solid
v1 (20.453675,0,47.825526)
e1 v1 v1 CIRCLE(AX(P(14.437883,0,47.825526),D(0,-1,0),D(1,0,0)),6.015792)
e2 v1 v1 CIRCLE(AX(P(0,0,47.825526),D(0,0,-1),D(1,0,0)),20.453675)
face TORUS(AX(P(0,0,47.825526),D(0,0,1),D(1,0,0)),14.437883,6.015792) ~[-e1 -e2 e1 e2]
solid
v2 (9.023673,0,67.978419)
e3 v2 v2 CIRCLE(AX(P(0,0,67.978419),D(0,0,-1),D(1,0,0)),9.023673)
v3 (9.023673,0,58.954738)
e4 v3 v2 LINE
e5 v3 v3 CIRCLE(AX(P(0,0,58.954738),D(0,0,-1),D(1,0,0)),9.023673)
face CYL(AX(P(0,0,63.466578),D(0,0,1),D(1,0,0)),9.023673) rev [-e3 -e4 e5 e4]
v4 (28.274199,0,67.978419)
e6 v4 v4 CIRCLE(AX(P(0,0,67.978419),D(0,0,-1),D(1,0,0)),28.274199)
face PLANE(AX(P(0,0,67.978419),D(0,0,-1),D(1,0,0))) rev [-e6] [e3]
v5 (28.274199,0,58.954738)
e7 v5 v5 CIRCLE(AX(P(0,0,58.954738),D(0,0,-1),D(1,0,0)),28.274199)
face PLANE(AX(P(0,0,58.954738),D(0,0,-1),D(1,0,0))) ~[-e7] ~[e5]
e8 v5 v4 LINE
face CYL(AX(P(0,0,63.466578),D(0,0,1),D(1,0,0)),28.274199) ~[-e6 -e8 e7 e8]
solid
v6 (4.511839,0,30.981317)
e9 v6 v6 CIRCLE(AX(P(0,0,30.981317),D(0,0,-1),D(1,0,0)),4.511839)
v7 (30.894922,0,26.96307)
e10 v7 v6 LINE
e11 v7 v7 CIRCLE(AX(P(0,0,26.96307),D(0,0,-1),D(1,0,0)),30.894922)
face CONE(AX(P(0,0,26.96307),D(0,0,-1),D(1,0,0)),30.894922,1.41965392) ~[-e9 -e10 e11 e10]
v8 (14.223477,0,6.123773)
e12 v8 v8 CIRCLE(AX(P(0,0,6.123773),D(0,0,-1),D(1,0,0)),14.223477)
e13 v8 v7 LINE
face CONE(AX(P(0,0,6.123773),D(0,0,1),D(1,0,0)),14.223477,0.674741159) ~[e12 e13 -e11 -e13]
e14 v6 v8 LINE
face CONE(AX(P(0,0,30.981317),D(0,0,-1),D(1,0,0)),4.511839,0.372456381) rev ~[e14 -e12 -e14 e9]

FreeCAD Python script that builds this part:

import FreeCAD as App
import Part
import Sketcher

V = App.Vector
Q = App.Units.Quantity


def add_polygon(sketch, points):
    """Adds a closed chain of lines whose ends are joined by coincident constraints."""
    first, n = sketch.GeometryCount, len(points)
    for a, b in zip(points, points[1:] + points[:1]):
        sketch.addGeometry(Part.LineSegment(App.Vector(*a, 0), App.Vector(*b, 0)), False)
    for i in range(n):
        sketch.addConstraint(Sketcher.Constraint("Coincident", first + i, 2, first + (i + 1) % n, 1))

doc = App.newDocument("Part")
body = doc.addObject("PartDesign::Body", "Body")
body.AllowCompound = True

# Sketch on XZ plane
sketch1 = doc.addObject("Sketcher::SketchObject", "Sketch")
body.addObject(sketch1)
sketch1.AttachmentSupport = (doc.XZ_Plane, [""])
sketch1.MapMode = "FlatFace"
add_polygon(sketch1, [(9.023673, 67.978419), (9.023673, 58.954738), (28.274199, 58.954738), (28.274199, 67.978419)])  # lines 0-3
sketch1.addGeometry(Part.Circle(V(14.437883, 47.825526, 0), V(0, 0, 1), 6.015792), False)  # 4
add_polygon(sketch1, [(14.223477, 6.123773), (30.894922, 26.96307), (4.511839, 30.981317)])  # lines 5-7
sketch1.addConstraint(Sketcher.Constraint("Vertical", 0))
sketch1.addConstraint(Sketcher.Constraint("Horizontal", 1))
sketch1.addConstraint(Sketcher.Constraint("Vertical", 2))
sketch1.addConstraint(Sketcher.Constraint("Horizontal", 3))
sketch1.addConstraint(Sketcher.Constraint("Equal", 5, 6))
sketch1.addConstraint(Sketcher.Constraint("Equal", 6, 7))
sketch1.addConstraint(Sketcher.Constraint("Diameter", 4, Q("12.031584 mm")))
sketch1.addConstraint(Sketcher.Constraint("DistanceY", 0, 2, 0, 1, Q("9.023681 mm")))
sketch1.addConstraint(Sketcher.Constraint("DistanceX", -1, 1, 1, 2, Q("28.274199 mm")))
sketch1.addConstraint(Sketcher.Constraint("DistanceY", 6, 2, 3, 2, Q("36.997101 mm")))
sketch1.addConstraint(Sketcher.Constraint("DistanceX", 1, 1, 1, 2, Q("19.250525 mm")))
sketch1.addConstraint(Sketcher.Constraint("DistanceY", -1, 1, 2, 2, Q("67.978419 mm")))
sketch1.addConstraint(Sketcher.Constraint("DistanceY", -1, 1, 5, 2, Q("26.96307 mm")))
sketch1.addConstraint(Sketcher.Constraint("DistanceX", -1, 1, 6, 2, Q("4.511839 mm")))
sketch1.addConstraint(Sketcher.Constraint("DistanceX", 0, 2, 4, 3, Q("5.41421 mm")))
sketch1.addConstraint(Sketcher.Constraint("DistanceY", 4, 3, 0, 2, Q("11.129211 mm")))
sketch1.addConstraint(Sketcher.Constraint("DistanceX", 4, 3, 5, 2, Q("16.457039 mm")))
revolution = doc.addObject("PartDesign::Revolution", "Revolution")
body.addObject(revolution)
revolution.Profile = sketch1
revolution.ReferenceAxis = (sketch1, ["V_Axis"])
revolution.Angle = 360

doc.recompute()
